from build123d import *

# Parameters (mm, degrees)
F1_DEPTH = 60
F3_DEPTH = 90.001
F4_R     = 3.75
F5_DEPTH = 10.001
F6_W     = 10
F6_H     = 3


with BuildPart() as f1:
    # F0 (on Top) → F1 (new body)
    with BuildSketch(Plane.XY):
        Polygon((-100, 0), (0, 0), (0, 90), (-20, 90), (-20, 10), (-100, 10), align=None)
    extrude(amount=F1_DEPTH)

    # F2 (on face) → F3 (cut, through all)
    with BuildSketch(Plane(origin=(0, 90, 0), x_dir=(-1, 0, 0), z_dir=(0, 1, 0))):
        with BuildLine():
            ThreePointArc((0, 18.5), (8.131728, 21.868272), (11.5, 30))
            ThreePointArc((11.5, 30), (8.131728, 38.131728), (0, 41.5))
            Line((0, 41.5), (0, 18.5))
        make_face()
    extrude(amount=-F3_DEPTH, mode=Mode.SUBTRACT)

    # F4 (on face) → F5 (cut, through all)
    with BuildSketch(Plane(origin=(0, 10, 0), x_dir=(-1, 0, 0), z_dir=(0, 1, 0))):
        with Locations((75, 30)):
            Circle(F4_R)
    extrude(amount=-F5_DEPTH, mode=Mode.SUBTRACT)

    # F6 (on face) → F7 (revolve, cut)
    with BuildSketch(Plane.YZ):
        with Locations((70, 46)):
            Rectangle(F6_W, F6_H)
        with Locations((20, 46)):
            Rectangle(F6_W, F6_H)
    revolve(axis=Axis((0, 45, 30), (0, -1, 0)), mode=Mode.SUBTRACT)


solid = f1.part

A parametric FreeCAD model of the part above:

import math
import FreeCAD as App
import Part
import Sketcher


def add_polygon(sketch, points):
    """Adds a closed chain of lines whose ends are joined by coincident constraints."""
    first, n = sketch.GeometryCount, len(points)
    for a, b in zip(points, points[1:] + points[:1]):
        sketch.addGeometry(Part.LineSegment(App.Vector(*a, 0), App.Vector(*b, 0)), False)
    for i in range(n):
        sketch.addConstraint(Sketcher.Constraint("Coincident", first + i, 2, first + (i + 1) % n, 1))

doc = App.newDocument("Part")
params = doc.addObject("Spreadsheet::Sheet", "Params")
for row, (alias, value) in enumerate([
    ("sketch1_width", "100 mm"),
    ("sketch1_width2", "20 mm"),
    ("sketch1_height", "90 mm"),
    ("pad1_length", "60 mm"),
    ("sketch2_radius", "11.5 mm"),
    ("sketch3_diameter", "7.5 mm"),
    ("sketch4_width", "10 mm"),
    ("sketch4_width2", "60 mm"),
    ("sketch4_height", "3 mm"),
    ("groove_angle", "360 deg"),
], start=1):
    params.set(f"A{row}", alias)
    params.set(f"B{row}", "=" + value)
    params.setAlias(f"B{row}", alias)

body = doc.addObject("PartDesign::Body", "Body")

# Sketch on XY plane
sketch1 = body.newObject("Sketcher::SketchObject", "Sketch")
sketch1.AttachmentSupport = (doc.getObject("XY_Plane"), [""])
sketch1.MapMode = "FlatFace"
add_polygon(sketch1, [(-100, 0), (0, 0), (0, 90), (-20, 90), (-20, 10), (-100, 10)])  # lines 0-5
sketch1.addConstraint(Sketcher.Constraint("Horizontal", 0))
sketch1.addConstraint(Sketcher.Constraint("Vertical", 1))
sketch1.addConstraint(Sketcher.Constraint("Horizontal", 2))
sketch1.addConstraint(Sketcher.Constraint("Vertical", 3))
sketch1.addConstraint(Sketcher.Constraint("Horizontal", 4))
sketch1.addConstraint(Sketcher.Constraint("Vertical", 5))
sketch1.addConstraint(Sketcher.Constraint("Coincident", 0, 2, -1, 1))
sketch1.addConstraint(Sketcher.Constraint("Equal", 4, 3))
sketch1.addConstraint(Sketcher.Constraint("DistanceX", 0, 1, 0, 2, 100.0))
sketch1.addConstraint(Sketcher.Constraint("DistanceX", 2, 2, 2, 1, 20.0))
sketch1.addConstraint(Sketcher.Constraint("DistanceY", 1, 1, 1, 2, 90.0))
sketch1.setExpression("Constraints[14]", "Params.sketch1_width")
sketch1.setExpression("Constraints[15]", "Params.sketch1_width2")
sketch1.setExpression("Constraints[16]", "Params.sketch1_height")
pad1 = body.newObject("PartDesign::Pad", "Pad")
pad1.Profile = sketch1
pad1.setExpression("Length", "Params.pad1_length")

# Sketch on XZ plane
sketch2 = body.newObject("Sketcher::SketchObject", "Sketch001")
sketch2.AttachmentSupport = (doc.getObject("XZ_Plane"), [""])
sketch2.MapMode = "FlatFace"
sketch2.AttachmentOffset = App.Placement(App.Vector(0, 0, -90), App.Rotation())
sketch2.addGeometry(Part.ArcOfCircle(Part.Circle(App.Vector(0, 30, 0), App.Vector(0, 0, 1), 11.5), math.radians(180), math.radians(270)), False)
sketch2.addGeometry(Part.ArcOfCircle(Part.Circle(App.Vector(0, 30, 0), App.Vector(0, 0, 1), 11.5), math.radians(90), math.radians(180)), False)
sketch2.addGeometry(Part.LineSegment(App.Vector(0, 41.5, 0), App.Vector(0, 18.5, 0)), False)
sketch2.addConstraint(Sketcher.Constraint("Tangent", 0, 1, 1, 2))
sketch2.addConstraint(Sketcher.Constraint("Coincident", 1, 1, 2, 1))
sketch2.addConstraint(Sketcher.Constraint("Coincident", 2, 2, 0, 2))
sketch2.addConstraint(Sketcher.Constraint("Vertical", 2))
sketch2.addConstraint(Sketcher.Constraint("Equal", 0, 1))
sketch2.addConstraint(Sketcher.Constraint("PointOnObject", 0, 3, -2))
sketch2.addConstraint(Sketcher.Constraint("PointOnObject", 1, 1, -2))
sketch2.addConstraint(Sketcher.Constraint("Horizontal", 1, 3, 0, 1))
sketch2.addConstraint(Sketcher.Constraint("Radius", 0, 11.5))
sketch2.addConstraint(Sketcher.Constraint("DistanceY", -1, 1, 0, 3, 30.0))
sketch2.setExpression("Constraints[8]", "Params.sketch2_radius")
pocket1 = body.newObject("PartDesign::Pocket", "Pocket")
pocket1.Profile = sketch2
pocket1.Type = "ThroughAll"
pocket1.Reversed = True

# Sketch on XZ plane
sketch3 = body.newObject("Sketcher::SketchObject", "Sketch002")
sketch3.AttachmentSupport = (doc.getObject("XZ_Plane"), [""])
sketch3.MapMode = "FlatFace"
sketch3.AttachmentOffset = App.Placement(App.Vector(0, 0, -10), App.Rotation())
sketch3.addGeometry(Part.Circle(App.Vector(-75, 30, 0), App.Vector(0, 0, 1), 3.75), False)
sketch3.addConstraint(Sketcher.Constraint("Diameter", 0, 7.5))
sketch3.addConstraint(Sketcher.Constraint("DistanceX", 0, 3, -1, 1, 75.0))
sketch3.addConstraint(Sketcher.Constraint("DistanceY", -1, 1, 0, 3, 30.0))
sketch3.setExpression("Constraints[0]", "Params.sketch3_diameter")
pocket2 = body.newObject("PartDesign::Pocket", "Pocket001")
pocket2.Profile = sketch3
pocket2.Type = "ThroughAll"
pocket2.Reversed = True

# Sketch on YZ plane
sketch4 = body.newObject("Sketcher::SketchObject", "Sketch003")
sketch4.AttachmentSupport = (doc.getObject("YZ_Plane"), [""])
sketch4.MapMode = "FlatFace"
add_polygon(sketch4, [(65, 47.5), (65, 44.5), (75, 44.5), (75, 47.5)])  # lines 0-3
add_polygon(sketch4, [(15, 47.5), (15, 44.5), (25, 44.5), (25, 47.5)])  # lines 4-7
sketch4.addGeometry(Part.LineSegment(App.Vector(75, 30, 0), App.Vector(15, 30, 0)), True)  # axis
sketch4.addConstraint(Sketcher.Constraint("Vertical", 0))
sketch4.addConstraint(Sketcher.Constraint("Horizontal", 1))
sketch4.addConstraint(Sketcher.Constraint("Vertical", 2))
sketch4.addConstraint(Sketcher.Constraint("Horizontal", 3))
sketch4.addConstraint(Sketcher.Constraint("Vertical", 4))
sketch4.addConstraint(Sketcher.Constraint("Horizontal", 5))
sketch4.addConstraint(Sketcher.Constraint("Vertical", 6))
sketch4.addConstraint(Sketcher.Constraint("Horizontal", 7))
sketch4.addConstraint(Sketcher.Constraint("Horizontal", 8))
sketch4.addConstraint(Sketcher.Constraint("Horizontal", 1, 2, 4, 2))
sketch4.addConstraint(Sketcher.Constraint("Horizontal", 3, 2, 6, 2))
sketch4.addConstraint(Sketcher.Constraint("Vertical", 2, 2, 8, 1))
sketch4.addConstraint(Sketcher.Constraint("Vertical", 7, 2, 8, 2))
sketch4.addConstraint(Sketcher.Constraint("Equal", 3, 5))
sketch4.addConstraint(Sketcher.Constraint("DistanceX", 1, 1, 1, 2, 10.0))
sketch4.addConstraint(Sketcher.Constraint("DistanceX", 8, 2, 8, 1, 60.0))
sketch4.addConstraint(Sketcher.Constraint("DistanceY", 0, 2, 0, 1, 3.0))
sketch4.addConstraint(Sketcher.Constraint("DistanceX", -1, 1, 0, 2, 65.0))
sketch4.addConstraint(Sketcher.Constraint("DistanceY", -1, 1, 8, 1, 30.0))
sketch4.addConstraint(Sketcher.Constraint("DistanceY", -1, 1, 0, 2, 44.5))
sketch4.setExpression("Constraints[22]", "Params.sketch4_width")
sketch4.setExpression("Constraints[23]", "Params.sketch4_width2")
sketch4.setExpression("Constraints[24]", "Params.sketch4_height")
groove = body.newObject("PartDesign::Groove", "Groove")
groove.Profile = sketch4
groove.ReferenceAxis = (sketch4, ["Axis0"])
groove.setExpression("Angle", "Params.groove_angle")

doc.recompute()
